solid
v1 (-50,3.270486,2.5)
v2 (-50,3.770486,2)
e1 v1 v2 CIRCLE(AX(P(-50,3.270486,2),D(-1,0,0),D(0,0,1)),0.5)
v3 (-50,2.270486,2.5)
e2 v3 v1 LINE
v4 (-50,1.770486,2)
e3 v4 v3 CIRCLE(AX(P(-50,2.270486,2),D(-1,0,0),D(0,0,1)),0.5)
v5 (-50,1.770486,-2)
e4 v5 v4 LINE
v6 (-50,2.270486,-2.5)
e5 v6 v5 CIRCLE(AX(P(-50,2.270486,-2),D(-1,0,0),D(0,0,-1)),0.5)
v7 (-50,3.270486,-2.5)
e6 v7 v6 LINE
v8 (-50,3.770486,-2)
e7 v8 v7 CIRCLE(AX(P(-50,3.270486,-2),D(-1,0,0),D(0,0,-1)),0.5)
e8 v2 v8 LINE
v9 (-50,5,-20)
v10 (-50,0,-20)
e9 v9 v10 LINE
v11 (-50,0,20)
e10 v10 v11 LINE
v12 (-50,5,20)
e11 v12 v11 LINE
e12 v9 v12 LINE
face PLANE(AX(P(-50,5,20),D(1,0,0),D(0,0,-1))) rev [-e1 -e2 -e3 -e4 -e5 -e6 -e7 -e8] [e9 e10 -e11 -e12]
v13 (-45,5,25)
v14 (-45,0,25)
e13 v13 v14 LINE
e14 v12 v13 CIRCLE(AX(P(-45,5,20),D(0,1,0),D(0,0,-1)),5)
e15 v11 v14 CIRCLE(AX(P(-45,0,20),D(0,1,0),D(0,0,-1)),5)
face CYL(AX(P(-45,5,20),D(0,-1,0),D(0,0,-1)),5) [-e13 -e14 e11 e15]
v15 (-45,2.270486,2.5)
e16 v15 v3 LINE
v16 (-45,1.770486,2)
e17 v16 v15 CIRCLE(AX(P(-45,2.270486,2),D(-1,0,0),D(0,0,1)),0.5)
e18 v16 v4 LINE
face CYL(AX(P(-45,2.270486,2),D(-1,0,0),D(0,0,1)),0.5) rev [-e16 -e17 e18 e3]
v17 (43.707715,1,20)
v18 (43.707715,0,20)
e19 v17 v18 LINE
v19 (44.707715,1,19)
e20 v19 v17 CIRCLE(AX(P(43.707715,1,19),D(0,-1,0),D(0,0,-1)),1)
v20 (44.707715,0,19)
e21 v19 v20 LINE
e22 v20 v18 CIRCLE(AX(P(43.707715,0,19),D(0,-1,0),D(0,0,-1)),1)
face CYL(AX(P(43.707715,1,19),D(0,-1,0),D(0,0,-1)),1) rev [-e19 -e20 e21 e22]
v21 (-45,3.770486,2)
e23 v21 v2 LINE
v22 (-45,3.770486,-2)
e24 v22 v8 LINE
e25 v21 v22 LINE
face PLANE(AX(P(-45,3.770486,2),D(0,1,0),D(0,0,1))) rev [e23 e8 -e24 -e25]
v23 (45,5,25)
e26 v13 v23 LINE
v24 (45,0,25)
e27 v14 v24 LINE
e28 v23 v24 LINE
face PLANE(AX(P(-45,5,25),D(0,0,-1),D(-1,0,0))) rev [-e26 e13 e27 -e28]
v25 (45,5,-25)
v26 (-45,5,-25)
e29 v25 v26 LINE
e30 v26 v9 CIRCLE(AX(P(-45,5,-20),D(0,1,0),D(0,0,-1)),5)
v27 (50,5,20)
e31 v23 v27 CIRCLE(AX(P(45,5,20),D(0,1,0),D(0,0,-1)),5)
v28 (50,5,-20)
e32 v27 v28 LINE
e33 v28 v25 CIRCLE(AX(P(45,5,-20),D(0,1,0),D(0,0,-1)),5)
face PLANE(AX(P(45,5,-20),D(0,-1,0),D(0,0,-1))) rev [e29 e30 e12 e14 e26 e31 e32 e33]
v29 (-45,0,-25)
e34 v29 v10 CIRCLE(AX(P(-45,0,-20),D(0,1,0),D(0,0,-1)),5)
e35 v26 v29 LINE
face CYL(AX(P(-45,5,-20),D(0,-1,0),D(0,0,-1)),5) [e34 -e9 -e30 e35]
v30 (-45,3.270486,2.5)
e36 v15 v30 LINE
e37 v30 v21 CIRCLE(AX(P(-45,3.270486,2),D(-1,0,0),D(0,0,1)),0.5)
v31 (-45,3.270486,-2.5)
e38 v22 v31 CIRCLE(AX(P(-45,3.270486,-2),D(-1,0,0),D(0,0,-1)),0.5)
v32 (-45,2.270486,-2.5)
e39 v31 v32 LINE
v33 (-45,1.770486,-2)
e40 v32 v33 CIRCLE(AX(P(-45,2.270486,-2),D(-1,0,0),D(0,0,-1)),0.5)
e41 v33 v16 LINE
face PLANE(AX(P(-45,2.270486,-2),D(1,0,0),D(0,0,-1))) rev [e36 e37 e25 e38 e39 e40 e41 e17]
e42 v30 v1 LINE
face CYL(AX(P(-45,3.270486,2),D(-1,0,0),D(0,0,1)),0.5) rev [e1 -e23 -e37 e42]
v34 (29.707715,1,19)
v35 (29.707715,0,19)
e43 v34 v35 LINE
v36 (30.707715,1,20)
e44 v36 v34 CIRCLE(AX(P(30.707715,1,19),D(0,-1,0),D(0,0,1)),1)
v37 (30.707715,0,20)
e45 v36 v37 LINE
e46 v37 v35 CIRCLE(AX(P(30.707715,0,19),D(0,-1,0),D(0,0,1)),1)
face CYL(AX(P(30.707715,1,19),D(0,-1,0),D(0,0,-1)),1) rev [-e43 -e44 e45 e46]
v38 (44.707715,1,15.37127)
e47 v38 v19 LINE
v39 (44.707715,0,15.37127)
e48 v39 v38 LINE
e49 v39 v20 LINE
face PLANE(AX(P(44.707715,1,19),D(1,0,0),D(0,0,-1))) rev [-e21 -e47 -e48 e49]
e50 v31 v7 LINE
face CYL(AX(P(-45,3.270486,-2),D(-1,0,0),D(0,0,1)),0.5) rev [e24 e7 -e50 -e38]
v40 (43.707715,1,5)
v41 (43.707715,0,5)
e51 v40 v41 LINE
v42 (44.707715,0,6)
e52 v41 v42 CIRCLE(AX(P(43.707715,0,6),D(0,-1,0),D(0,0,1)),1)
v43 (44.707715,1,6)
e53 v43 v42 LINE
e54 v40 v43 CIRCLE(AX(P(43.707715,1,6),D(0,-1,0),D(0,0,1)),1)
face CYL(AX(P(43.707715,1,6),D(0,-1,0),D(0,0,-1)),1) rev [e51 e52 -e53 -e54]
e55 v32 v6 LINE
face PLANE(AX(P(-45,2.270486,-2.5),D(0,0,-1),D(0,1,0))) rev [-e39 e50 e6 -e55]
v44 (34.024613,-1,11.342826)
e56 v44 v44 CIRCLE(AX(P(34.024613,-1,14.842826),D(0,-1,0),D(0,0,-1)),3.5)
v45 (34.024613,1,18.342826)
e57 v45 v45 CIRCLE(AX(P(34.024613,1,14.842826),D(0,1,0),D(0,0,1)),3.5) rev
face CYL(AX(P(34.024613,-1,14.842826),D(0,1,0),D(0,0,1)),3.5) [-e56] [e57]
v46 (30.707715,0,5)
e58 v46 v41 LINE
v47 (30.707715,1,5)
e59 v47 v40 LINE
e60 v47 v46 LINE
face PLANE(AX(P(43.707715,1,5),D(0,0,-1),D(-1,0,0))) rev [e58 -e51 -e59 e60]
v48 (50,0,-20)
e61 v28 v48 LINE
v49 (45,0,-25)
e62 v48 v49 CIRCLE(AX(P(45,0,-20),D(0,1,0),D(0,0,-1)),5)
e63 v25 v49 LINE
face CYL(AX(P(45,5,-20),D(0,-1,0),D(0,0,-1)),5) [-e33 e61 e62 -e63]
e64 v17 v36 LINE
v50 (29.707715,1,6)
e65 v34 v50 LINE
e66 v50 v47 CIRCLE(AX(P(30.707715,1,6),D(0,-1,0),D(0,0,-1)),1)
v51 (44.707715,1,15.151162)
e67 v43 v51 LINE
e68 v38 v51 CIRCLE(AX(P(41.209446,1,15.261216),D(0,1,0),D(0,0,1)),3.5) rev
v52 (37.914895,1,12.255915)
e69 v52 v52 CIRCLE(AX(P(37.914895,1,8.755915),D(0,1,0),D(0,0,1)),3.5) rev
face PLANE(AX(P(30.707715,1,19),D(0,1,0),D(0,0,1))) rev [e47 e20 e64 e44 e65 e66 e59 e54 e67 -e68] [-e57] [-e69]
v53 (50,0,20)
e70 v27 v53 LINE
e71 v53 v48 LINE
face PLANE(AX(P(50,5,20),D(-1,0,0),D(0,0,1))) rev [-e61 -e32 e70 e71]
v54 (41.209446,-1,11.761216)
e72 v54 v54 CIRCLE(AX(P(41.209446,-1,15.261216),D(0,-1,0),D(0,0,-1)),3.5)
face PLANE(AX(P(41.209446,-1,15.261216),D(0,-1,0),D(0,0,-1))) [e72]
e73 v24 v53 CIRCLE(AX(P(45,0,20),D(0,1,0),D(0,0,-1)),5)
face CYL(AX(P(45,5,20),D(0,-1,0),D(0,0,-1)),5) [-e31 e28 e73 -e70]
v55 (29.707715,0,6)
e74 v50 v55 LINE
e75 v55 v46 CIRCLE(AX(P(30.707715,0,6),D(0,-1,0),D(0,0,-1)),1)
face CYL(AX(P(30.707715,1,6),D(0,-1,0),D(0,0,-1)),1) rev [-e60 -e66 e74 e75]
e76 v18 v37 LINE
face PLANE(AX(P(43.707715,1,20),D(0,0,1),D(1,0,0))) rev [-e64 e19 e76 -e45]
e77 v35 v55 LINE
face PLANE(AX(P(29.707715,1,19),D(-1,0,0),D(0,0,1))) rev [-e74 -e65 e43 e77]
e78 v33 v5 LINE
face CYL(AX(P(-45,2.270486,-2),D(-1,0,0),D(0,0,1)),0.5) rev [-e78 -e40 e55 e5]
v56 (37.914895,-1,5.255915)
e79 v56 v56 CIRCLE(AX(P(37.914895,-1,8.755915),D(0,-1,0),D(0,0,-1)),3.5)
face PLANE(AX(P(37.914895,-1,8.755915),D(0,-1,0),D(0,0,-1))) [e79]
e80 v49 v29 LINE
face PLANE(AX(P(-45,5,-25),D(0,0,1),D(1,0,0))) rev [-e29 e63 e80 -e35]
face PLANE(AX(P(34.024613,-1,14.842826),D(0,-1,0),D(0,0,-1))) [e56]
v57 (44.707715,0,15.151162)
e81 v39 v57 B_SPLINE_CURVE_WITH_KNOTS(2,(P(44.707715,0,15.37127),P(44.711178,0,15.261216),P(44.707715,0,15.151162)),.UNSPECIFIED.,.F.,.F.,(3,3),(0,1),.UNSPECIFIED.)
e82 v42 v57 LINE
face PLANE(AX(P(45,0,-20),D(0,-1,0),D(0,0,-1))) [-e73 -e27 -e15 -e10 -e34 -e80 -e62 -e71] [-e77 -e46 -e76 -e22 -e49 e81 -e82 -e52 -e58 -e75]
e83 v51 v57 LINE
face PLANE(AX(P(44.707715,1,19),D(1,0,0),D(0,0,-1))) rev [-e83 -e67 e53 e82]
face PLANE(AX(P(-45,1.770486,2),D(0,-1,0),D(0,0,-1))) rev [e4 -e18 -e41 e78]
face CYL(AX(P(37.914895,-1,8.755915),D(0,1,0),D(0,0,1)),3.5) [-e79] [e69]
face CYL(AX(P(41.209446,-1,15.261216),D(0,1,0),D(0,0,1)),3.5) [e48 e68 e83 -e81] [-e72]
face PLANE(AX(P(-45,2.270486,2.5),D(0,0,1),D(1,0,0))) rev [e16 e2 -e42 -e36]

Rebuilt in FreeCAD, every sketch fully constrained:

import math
import FreeCAD as App
import Part
import Sketcher

V = App.Vector

doc = App.newDocument("Part")
body = doc.addObject("PartDesign::Body", "Body")

# Sketch on XZ plane
sketch1 = body.newObject("Sketcher::SketchObject", "Sketch")
sketch1.AttachmentSupport = (doc.getObject("XZ_Plane"), [""])
sketch1.MapMode = "FlatFace"
sketch1.addGeometry([
    Part.LineSegment(V(-45, 25, 0), V(45, 25, 0)),  # 0
    Part.ArcOfCircle(Part.Circle(V(45, 20, 0), V(0, 0, 1), 5), math.radians(0), math.radians(90)),  # 1
    Part.LineSegment(V(50, 20, 0), V(50, -20, 0)),  # 2
    Part.ArcOfCircle(Part.Circle(V(45, -20, 0), V(0, 0, 1), 5), math.radians(-90), math.radians(0)),  # 3
    Part.LineSegment(V(45, -25, 0), V(-45, -25, 0)),  # 4
    Part.ArcOfCircle(Part.Circle(V(-45, -20, 0), V(0, 0, 1), 5), math.radians(180), math.radians(270)),  # 5
    Part.LineSegment(V(-50, -20, 0), V(-50, 20, 0)),  # 6
    Part.ArcOfCircle(Part.Circle(V(-45, 20, 0), V(0, 0, 1), 5), math.radians(90), math.radians(180)),  # 7
], False)
sketch1.addConstraint([
    Sketcher.Constraint("Tangent", 0, 2, 1, 2),
    Sketcher.Constraint("Tangent", 1, 1, 2, 1),
    Sketcher.Constraint("Tangent", 2, 2, 3, 2),
    Sketcher.Constraint("Tangent", 3, 1, 4, 1),
    Sketcher.Constraint("Tangent", 4, 2, 5, 2),
    Sketcher.Constraint("Tangent", 5, 1, 6, 1),
    Sketcher.Constraint("Tangent", 6, 2, 7, 2),
    Sketcher.Constraint("Tangent", 7, 1, 0, 1),
    Sketcher.Constraint("Horizontal", 0),
    Sketcher.Constraint("Vertical", 2),
    Sketcher.Constraint("Horizontal", 4),
    Sketcher.Constraint("Vertical", 6),
    Sketcher.Constraint("Equal", 1, 3),
    Sketcher.Constraint("Equal", 3, 5),
    Sketcher.Constraint("Equal", 5, 7),
    Sketcher.Constraint("Symmetric", 1, 3, 5, 3, -1, 1),
    Sketcher.Constraint("Radius", 1, 5.0),
    Sketcher.Constraint("DistanceX", 0, 1, 0, 2, 90.0),
    Sketcher.Constraint("DistanceY", 2, 2, 2, 1, 40.0),
])
pad1 = body.newObject("PartDesign::Pad", "Pad")
pad1.Profile = sketch1
pad1.Length = 5
pad1.Reversed = True

# Sketch on XZ plane
sketch2 = body.newObject("Sketcher::SketchObject", "Sketch001")
sketch2.AttachmentSupport = (doc.getObject("XZ_Plane"), [""])
sketch2.MapMode = "FlatFace"
sketch2.addGeometry([
    Part.LineSegment(V(43.707715, 20, 0), V(30.707715, 20, 0)),  # 0
    Part.ArcOfCircle(Part.Circle(V(30.707715, 19, 0), V(0, 0, 1), 1), math.radians(90), math.radians(180)),  # 1
    Part.LineSegment(V(29.707715, 19, 0), V(29.707715, 6, 0)),  # 2
    Part.ArcOfCircle(Part.Circle(V(30.707715, 6, 0), V(0, 0, 1), 1), math.radians(180), math.radians(270)),  # 3
    Part.LineSegment(V(30.707715, 5, 0), V(43.707715, 5, 0)),  # 4
    Part.ArcOfCircle(Part.Circle(V(43.707715, 6, 0), V(0, 0, 1), 1), math.radians(-90), math.radians(0)),  # 5
    Part.LineSegment(V(44.707715, 6, 0), V(44.707715, 19, 0)),  # 6
    Part.ArcOfCircle(Part.Circle(V(43.707715, 19, 0), V(0, 0, 1), 1), math.radians(0), math.radians(90)),  # 7
], False)
sketch2.addConstraint([
    Sketcher.Constraint("Tangent", 0, 2, 1, 1),
    Sketcher.Constraint("Tangent", 1, 2, 2, 1),
    Sketcher.Constraint("Tangent", 2, 2, 3, 1),
    Sketcher.Constraint("Tangent", 3, 2, 4, 1),
    Sketcher.Constraint("Tangent", 4, 2, 5, 1),
    Sketcher.Constraint("Tangent", 5, 2, 6, 1),
    Sketcher.Constraint("Tangent", 6, 2, 7, 1),
    Sketcher.Constraint("Tangent", 7, 2, 0, 1),
    Sketcher.Constraint("Horizontal", 0),
    Sketcher.Constraint("Vertical", 2),
    Sketcher.Constraint("Horizontal", 4),
    Sketcher.Constraint("Vertical", 6),
    Sketcher.Constraint("Equal", 1, 3),
    Sketcher.Constraint("Equal", 3, 5),
    Sketcher.Constraint("Equal", 5, 7),
    Sketcher.Constraint("Equal", 4, 2),
    Sketcher.Constraint("Radius", 1, 1.0),
    Sketcher.Constraint("DistanceX", 0, 2, 0, 1, 13.0),
    Sketcher.Constraint("DistanceY", -1, 1, 1, 3, 19.0),
    Sketcher.Constraint("DistanceX", -1, 1, 1, 3, 30.707715),
])
pocket1 = body.newObject("PartDesign::Pocket", "Pocket")
pocket1.Profile = sketch2
pocket1.Length = 1

# Sketch on XZ plane
sketch3 = body.newObject("Sketcher::SketchObject", "Sketch002")
sketch3.AttachmentSupport = (doc.getObject("XZ_Plane"), [""])
sketch3.MapMode = "FlatFace"
sketch3.AttachmentOffset = App.Placement(V(0, 0, -1), App.Rotation())
sketch3.addGeometry([
    Part.Circle(V(37.914895, 8.755915, 0), V(0, 0, 1), 3.5),
    Part.Circle(V(34.024613, 14.842826, 0), V(0, 0, 1), 3.5),
    Part.Circle(V(41.209446, 15.261216, 0), V(0, 0, 1), 3.5),
], False)
sketch3.addConstraint([
    Sketcher.Constraint("Equal", 0, 1),
    Sketcher.Constraint("Equal", 1, 2),
    Sketcher.Constraint("Diameter", 0, 7.0),
    Sketcher.Constraint("DistanceY", 0, 3, 2, 3, 6.505301),
    Sketcher.Constraint("DistanceY", 0, 3, 1, 3, 6.086911),
    Sketcher.Constraint("DistanceX", 0, 3, 2, 3, 3.294551),
    Sketcher.Constraint("DistanceX", -1, 1, 0, 3, 37.914895),
    Sketcher.Constraint("DistanceY", -1, 1, 0, 3, 8.755915),
    Sketcher.Constraint("DistanceX", -1, 1, 1, 3, 34.024613),
])
pad2 = body.newObject("PartDesign::Pad", "Pad001")
pad2.Profile = sketch3
pad2.Length = 2

# Sketch on YZ plane
sketch4 = body.newObject("Sketcher::SketchObject", "Sketch003")
sketch4.AttachmentSupport = (doc.getObject("YZ_Plane"), [""])
sketch4.MapMode = "FlatFace"
sketch4.AttachmentOffset = App.Placement(V(0, 0, -50), App.Rotation())
sketch4.addGeometry([
    Part.LineSegment(V(1.770486, -2, 0), V(1.770486, 2, 0)),  # 0
    Part.ArcOfCircle(Part.Circle(V(2.270486, 2, 0), V(0, 0, 1), 0.5), math.radians(90), math.radians(180)),  # 1
    Part.LineSegment(V(2.270486, 2.5, 0), V(3.270486, 2.5, 0)),  # 2
    Part.ArcOfCircle(Part.Circle(V(3.270486, 2, 0), V(0, 0, 1), 0.5), math.radians(0), math.radians(90)),  # 3
    Part.LineSegment(V(3.770486, 2, 0), V(3.770486, -2, 0)),  # 4
    Part.ArcOfCircle(Part.Circle(V(3.270486, -2, 0), V(0, 0, 1), 0.5), math.radians(-90), math.radians(0)),  # 5
    Part.LineSegment(V(3.270486, -2.5, 0), V(2.270486, -2.5, 0)),  # 6
    Part.ArcOfCircle(Part.Circle(V(2.270486, -2, 0), V(0, 0, 1), 0.5), math.radians(180), math.radians(270)),  # 7
], False)
sketch4.addConstraint([
    Sketcher.Constraint("Tangent", 0, 2, 1, 2),
    Sketcher.Constraint("Tangent", 1, 1, 2, 1),
    Sketcher.Constraint("Tangent", 2, 2, 3, 2),
    Sketcher.Constraint("Tangent", 3, 1, 4, 1),
    Sketcher.Constraint("Tangent", 4, 2, 5, 2),
    Sketcher.Constraint("Tangent", 5, 1, 6, 1),
    Sketcher.Constraint("Tangent", 6, 2, 7, 2),
    Sketcher.Constraint("Tangent", 7, 1, 0, 1),
    Sketcher.Constraint("Vertical", 0),
    Sketcher.Constraint("Horizontal", 2),
    Sketcher.Constraint("Vertical", 4),
    Sketcher.Constraint("Horizontal", 6),
    Sketcher.Constraint("Equal", 1, 3),
    Sketcher.Constraint("Equal", 3, 5),
    Sketcher.Constraint("Equal", 5, 7),
    Sketcher.Constraint("Radius", 1, 0.5),
    Sketcher.Constraint("DistanceX", 2, 1, 2, 2, 1.0),
    Sketcher.Constraint("DistanceY", 0, 1, 0, 2, 4.0),
    Sketcher.Constraint("DistanceY", -1, 1, 1, 3, 2.0),
    Sketcher.Constraint("DistanceX", -1, 1, 1, 3, 2.270486),
])
pocket2 = body.newObject("PartDesign::Pocket", "Pocket001")
pocket2.Profile = sketch4
pocket2.Length = 5
pocket2.Reversed = True

doc.recompute()
